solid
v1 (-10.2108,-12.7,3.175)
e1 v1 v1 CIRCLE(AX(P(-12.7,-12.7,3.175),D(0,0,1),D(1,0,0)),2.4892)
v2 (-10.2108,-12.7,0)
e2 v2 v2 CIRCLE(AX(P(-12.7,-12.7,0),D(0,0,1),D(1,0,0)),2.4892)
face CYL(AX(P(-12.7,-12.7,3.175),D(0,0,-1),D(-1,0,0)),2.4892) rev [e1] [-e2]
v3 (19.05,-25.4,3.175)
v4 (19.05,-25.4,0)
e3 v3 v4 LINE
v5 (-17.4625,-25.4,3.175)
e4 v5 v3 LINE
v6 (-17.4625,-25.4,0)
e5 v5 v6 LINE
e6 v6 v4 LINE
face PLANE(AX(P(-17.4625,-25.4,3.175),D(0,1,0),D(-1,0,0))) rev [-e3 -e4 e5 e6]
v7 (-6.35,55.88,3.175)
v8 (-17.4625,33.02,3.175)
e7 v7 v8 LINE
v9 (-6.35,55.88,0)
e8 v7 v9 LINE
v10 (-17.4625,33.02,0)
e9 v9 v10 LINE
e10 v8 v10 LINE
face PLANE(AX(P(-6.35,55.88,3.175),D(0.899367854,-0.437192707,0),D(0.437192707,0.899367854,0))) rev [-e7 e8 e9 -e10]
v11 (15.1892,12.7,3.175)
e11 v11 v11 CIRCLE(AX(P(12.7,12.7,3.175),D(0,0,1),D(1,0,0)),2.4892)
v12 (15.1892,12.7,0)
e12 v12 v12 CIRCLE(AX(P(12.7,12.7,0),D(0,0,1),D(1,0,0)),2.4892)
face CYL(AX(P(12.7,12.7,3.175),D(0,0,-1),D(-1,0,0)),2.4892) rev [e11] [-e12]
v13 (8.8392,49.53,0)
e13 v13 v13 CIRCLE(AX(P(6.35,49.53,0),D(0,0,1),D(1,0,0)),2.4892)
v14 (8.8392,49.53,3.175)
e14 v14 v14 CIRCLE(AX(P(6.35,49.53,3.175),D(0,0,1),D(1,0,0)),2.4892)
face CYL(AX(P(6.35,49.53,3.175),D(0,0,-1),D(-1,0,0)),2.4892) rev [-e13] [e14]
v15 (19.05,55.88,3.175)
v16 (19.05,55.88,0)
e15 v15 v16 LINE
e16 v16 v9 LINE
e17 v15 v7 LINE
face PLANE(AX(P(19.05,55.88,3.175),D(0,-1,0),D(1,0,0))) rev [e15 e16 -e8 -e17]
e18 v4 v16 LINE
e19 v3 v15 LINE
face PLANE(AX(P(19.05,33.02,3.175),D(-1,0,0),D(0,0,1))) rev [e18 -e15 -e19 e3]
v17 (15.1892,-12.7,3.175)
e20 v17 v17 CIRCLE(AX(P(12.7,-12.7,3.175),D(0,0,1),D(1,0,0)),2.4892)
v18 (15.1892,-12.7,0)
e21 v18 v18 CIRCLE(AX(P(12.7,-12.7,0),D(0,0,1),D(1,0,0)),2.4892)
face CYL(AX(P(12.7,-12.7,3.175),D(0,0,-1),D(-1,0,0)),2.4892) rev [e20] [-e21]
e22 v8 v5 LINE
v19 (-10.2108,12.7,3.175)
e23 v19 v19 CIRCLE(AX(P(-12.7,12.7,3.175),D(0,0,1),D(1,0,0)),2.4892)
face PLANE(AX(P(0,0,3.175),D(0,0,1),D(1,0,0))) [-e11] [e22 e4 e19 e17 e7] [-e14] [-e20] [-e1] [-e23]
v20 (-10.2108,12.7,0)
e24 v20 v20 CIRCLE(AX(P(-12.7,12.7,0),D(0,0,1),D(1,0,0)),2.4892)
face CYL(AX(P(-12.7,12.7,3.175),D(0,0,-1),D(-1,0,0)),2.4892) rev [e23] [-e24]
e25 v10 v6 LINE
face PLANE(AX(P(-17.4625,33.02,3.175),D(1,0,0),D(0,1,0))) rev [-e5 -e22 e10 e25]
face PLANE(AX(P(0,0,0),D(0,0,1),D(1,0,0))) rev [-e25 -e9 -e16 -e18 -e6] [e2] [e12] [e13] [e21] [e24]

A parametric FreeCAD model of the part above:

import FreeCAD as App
import Part
import Sketcher

V = App.Vector
Q = App.Units.Quantity

doc = App.newDocument("Part")
body = doc.addObject("PartDesign::Body", "Body")

sketch1 = body.newObject("Sketcher::SketchObject", "Sketch")
sketch1.AttachmentSupport = (doc.getObject("XY_Plane"), [""])
sketch1.MapMode = "FlatFace"
sketch1.addGeometry([
    Part.LineSegment(V(19.1, 55.9, 0), V(-6.3, 55.9, 0)),
    Part.LineSegment(V(-6.3, 55.9, 0), V(-17.5, 33, 0)),
    Part.LineSegment(V(-17.5, 33, 0), V(-17.5, -25.4, 0)),
    Part.LineSegment(V(-17.5, -25.4, 0), V(19.1, -25.4, 0)),
    Part.LineSegment(V(19.1, -25.4, 0), V(19.1, 55.9, 0)),
    Part.Circle(V(-12.7, -12.7, 0), V(0, 0, 1), 2.5),
    Part.Circle(V(-12.7, 12.7, 0), V(0, 0, 1), 2.5),
    Part.Circle(V(12.7, -12.7, 0), V(0, 0, 1), 2.5),
    Part.Circle(V(12.7, 12.7, 0), V(0, 0, 1), 2.5),
    Part.Circle(V(6.3, 49.5, 0), V(0, 0, 1), 2.5),
], False)
sketch1.addConstraint([
    Sketcher.Constraint("Coincident", 0, 2, 1, 1),
    Sketcher.Constraint("Coincident", 1, 2, 2, 1),
    Sketcher.Constraint("Coincident", 2, 2, 3, 1),
    Sketcher.Constraint("Coincident", 3, 2, 4, 1),
    Sketcher.Constraint("Coincident", 4, 2, 0, 1),
    Sketcher.Constraint("Horizontal", 0),
    Sketcher.Constraint("Vertical", 2),
    Sketcher.Constraint("Horizontal", 3),
    Sketcher.Constraint("Vertical", 4),
    Sketcher.Constraint("Equal", 5, 6),
    Sketcher.Constraint("Equal", 6, 7),
    Sketcher.Constraint("Equal", 7, 8),
    Sketcher.Constraint("Equal", 8, 9),
    Sketcher.Constraint("Symmetric", 6, 3, 7, 3, -1, 1),
    Sketcher.Constraint("Symmetric", 5, 3, 8, 3, -1, 1),
    Sketcher.Constraint("Symmetric", 5, 3, 7, 3, -2),
    Sketcher.Constraint("DistanceX", 0, 2, 0, 1, Q("1 in")),
    Sketcher.Constraint("Diameter", 5, Q("0.196 in")),
    Sketcher.Constraint("DistanceY", 2, 2, 2, 1, Q("2.3 in")),
    Sketcher.Constraint("DistanceY", 4, 1, 4, 2, Q("3.2 in")),
    Sketcher.Constraint("DistanceY", 2, 2, -1, 1, Q("1 in")),
    Sketcher.Constraint("DistanceY", 5, 3, 6, 3, Q("1 in")),
    Sketcher.Constraint("DistanceX", 5, 3, 7, 3, Q("1 in")),
    Sketcher.Constraint("DistanceX", 0, 2, 9, 3, Q("0.5 in")),
    Sketcher.Constraint("DistanceX", 3, 1, 3, 2, Q("1.4375 in")),
    Sketcher.Constraint("DistanceX", -1, 1, 9, 3, Q("0.25 in")),
    Sketcher.Constraint("DistanceY", -1, 1, 9, 3, Q("1.95 in")),
])
pad1 = body.newObject("PartDesign::Pad", "Pad")
pad1.Profile = sketch1
pad1.Length = Q("0.125 in")

doc.recompute()
